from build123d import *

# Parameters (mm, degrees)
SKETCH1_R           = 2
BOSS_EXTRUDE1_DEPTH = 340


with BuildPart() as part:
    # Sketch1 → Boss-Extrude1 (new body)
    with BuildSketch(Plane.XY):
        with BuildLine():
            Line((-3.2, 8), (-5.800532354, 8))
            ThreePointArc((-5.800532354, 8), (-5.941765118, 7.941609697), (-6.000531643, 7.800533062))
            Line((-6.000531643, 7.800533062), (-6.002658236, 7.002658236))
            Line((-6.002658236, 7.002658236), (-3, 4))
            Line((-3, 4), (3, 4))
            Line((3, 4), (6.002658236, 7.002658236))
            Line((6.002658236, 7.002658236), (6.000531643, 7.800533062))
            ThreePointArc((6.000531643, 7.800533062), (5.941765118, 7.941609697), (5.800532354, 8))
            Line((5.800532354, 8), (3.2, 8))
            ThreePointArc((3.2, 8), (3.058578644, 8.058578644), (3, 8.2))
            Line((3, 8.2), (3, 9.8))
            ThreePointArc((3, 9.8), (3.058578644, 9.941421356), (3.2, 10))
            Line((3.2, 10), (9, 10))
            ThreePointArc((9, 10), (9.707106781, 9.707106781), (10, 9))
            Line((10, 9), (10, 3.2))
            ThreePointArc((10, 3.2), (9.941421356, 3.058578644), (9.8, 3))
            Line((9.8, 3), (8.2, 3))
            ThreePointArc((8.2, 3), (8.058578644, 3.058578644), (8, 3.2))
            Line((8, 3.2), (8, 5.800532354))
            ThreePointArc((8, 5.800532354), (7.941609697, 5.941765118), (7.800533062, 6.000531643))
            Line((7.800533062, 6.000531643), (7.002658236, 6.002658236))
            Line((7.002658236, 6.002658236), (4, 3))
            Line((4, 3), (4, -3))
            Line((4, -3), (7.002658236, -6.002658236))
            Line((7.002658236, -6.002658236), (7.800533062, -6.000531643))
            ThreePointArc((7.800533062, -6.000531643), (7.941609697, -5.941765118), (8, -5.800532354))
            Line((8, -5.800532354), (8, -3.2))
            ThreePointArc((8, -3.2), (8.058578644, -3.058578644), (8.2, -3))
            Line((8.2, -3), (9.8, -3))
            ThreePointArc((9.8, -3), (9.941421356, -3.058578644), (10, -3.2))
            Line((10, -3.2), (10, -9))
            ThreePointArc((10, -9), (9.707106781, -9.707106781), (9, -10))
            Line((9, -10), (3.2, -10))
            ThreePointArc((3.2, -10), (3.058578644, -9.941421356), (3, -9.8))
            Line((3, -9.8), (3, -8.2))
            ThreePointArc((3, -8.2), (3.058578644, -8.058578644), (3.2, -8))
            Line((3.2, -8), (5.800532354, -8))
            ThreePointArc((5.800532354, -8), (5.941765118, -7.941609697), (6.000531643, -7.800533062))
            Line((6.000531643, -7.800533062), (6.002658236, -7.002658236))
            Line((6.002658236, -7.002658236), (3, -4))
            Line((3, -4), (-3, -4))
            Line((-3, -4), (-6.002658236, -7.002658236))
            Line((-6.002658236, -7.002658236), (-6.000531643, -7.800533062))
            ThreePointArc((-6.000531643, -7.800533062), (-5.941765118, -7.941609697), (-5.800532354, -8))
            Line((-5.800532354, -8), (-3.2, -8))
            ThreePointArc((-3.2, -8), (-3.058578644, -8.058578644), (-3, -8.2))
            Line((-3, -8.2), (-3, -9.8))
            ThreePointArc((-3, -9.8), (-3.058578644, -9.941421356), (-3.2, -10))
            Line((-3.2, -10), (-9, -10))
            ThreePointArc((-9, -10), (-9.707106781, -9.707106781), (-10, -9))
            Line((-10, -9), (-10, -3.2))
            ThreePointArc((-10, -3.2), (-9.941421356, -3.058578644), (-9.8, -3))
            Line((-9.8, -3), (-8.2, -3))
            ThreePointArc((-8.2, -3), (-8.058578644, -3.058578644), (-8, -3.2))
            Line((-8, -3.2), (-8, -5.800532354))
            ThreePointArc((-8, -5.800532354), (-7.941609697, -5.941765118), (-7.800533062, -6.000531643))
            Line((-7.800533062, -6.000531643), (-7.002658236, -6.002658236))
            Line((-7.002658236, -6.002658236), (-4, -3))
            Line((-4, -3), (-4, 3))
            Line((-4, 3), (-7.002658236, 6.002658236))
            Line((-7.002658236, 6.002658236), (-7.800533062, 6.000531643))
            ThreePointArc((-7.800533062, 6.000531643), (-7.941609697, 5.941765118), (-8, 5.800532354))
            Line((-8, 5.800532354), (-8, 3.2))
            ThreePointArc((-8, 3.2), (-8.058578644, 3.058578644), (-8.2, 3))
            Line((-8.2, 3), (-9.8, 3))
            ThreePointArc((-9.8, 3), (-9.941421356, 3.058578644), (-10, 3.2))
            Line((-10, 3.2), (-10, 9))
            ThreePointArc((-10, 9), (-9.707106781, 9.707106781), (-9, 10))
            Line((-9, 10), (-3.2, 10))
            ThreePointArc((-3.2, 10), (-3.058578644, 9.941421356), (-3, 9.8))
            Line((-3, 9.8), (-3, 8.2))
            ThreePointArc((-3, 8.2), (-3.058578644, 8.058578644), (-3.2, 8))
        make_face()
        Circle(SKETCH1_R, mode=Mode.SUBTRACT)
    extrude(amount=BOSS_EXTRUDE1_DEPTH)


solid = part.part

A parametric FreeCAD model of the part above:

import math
import FreeCAD as App
import Part
import Sketcher
Q = App.Units.Quantity

doc = App.newDocument("Part")
body = doc.addObject("PartDesign::Body", "Body")

sketch1 = body.newObject("Sketcher::SketchObject", "Sketch")
sketch1.AttachmentSupport = (doc.getObject("XY_Plane"), [""])
sketch1.MapMode = "FlatFace"
sketch1.addGeometry([
    Part.LineSegment(App.Vector(-5.8, 8, 0), App.Vector(-3.2, 8, 0)),
    Part.ArcOfCircle(Part.Circle(App.Vector(-3.2, 8.2, 0), App.Vector(0, 0, 1), 0.2), math.radians(-90), math.radians(0)),
    Part.LineSegment(App.Vector(-3, 8.2, 0), App.Vector(-3, 9.8, 0)),
    Part.ArcOfCircle(Part.Circle(App.Vector(-3.2, 9.8, 0), App.Vector(0, 0, 1), 0.2), math.radians(0), math.radians(90)),
    Part.LineSegment(App.Vector(-3.2, 10, 0), App.Vector(-9, 10, 0)),
    Part.ArcOfCircle(Part.Circle(App.Vector(-9, 9, 0), App.Vector(0, 0, 1), 1), math.radians(90), math.radians(180)),
    Part.LineSegment(App.Vector(-10, 9, 0), App.Vector(-10, 3.2, 0)),
    Part.ArcOfCircle(Part.Circle(App.Vector(-9.8, 3.2, 0), App.Vector(0, 0, 1), 0.2), math.radians(-180), math.radians(-90)),
    Part.LineSegment(App.Vector(-9.8, 3, 0), App.Vector(-8.2, 3, 0)),
    Part.ArcOfCircle(Part.Circle(App.Vector(-8.2, 3.2, 0), App.Vector(0, 0, 1), 0.2), math.radians(-90), math.radians(0)),
    Part.LineSegment(App.Vector(-8, 3.2, 0), App.Vector(-8, 5.8, 0)),
    Part.ArcOfCircle(Part.Circle(App.Vector(-7.8, 5.8, 0), App.Vector(0, 0, 1), 0.2), math.radians(90), math.radians(180)),
    Part.LineSegment(App.Vector(-7.8, 6, 0), App.Vector(-7, 6, 0)),
    Part.LineSegment(App.Vector(-7, 6, 0), App.Vector(-4, 3, 0)),
    Part.LineSegment(App.Vector(-4, 3, 0), App.Vector(-4, -3, 0)),
    Part.LineSegment(App.Vector(-4, -3, 0), App.Vector(-7, -6, 0)),
    Part.LineSegment(App.Vector(-7, -6, 0), App.Vector(-7.8, -6, 0)),
    Part.ArcOfCircle(Part.Circle(App.Vector(-7.8, -5.8, 0), App.Vector(0, 0, 1), 0.2), math.radians(180), math.radians(270)),
    Part.LineSegment(App.Vector(-8, -5.8, 0), App.Vector(-8, -3.2, 0)),
    Part.ArcOfCircle(Part.Circle(App.Vector(-8.2, -3.2, 0), App.Vector(0, 0, 1), 0.2), math.radians(0), math.radians(90)),
    Part.LineSegment(App.Vector(-8.2, -3, 0), App.Vector(-9.8, -3, 0)),
    Part.ArcOfCircle(Part.Circle(App.Vector(-9.8, -3.2, 0), App.Vector(0, 0, 1), 0.2), math.radians(90), math.radians(180)),
    Part.LineSegment(App.Vector(-10, -3.2, 0), App.Vector(-10, -9, 0)),
    Part.ArcOfCircle(Part.Circle(App.Vector(-9, -9, 0), App.Vector(0, 0, 1), 1), math.radians(-180), math.radians(-90)),
    Part.LineSegment(App.Vector(-9, -10, 0), App.Vector(-3.2, -10, 0)),
    Part.ArcOfCircle(Part.Circle(App.Vector(-3.2, -9.8, 0), App.Vector(0, 0, 1), 0.2), math.radians(-90), math.radians(0)),
    Part.LineSegment(App.Vector(-3, -9.8, 0), App.Vector(-3, -8.2, 0)),
    Part.ArcOfCircle(Part.Circle(App.Vector(-3.2, -8.2, 0), App.Vector(0, 0, 1), 0.2), math.radians(0), math.radians(90)),
    Part.LineSegment(App.Vector(-3.2, -8, 0), App.Vector(-5.8, -8, 0)),
    Part.ArcOfCircle(Part.Circle(App.Vector(-5.8, -7.8, 0), App.Vector(0, 0, 1), 0.2), math.radians(-180), math.radians(-90)),
    Part.LineSegment(App.Vector(-6, -7.8, 0), App.Vector(-6, -7, 0)),
    Part.LineSegment(App.Vector(-6, -7, 0), App.Vector(-3, -4, 0)),
    Part.LineSegment(App.Vector(-3, -4, 0), App.Vector(3, -4, 0)),
    Part.LineSegment(App.Vector(3, -4, 0), App.Vector(6, -7, 0)),
    Part.LineSegment(App.Vector(6, -7, 0), App.Vector(6, -7.8, 0)),
    Part.ArcOfCircle(Part.Circle(App.Vector(5.8, -7.8, 0), App.Vector(0, 0, 1), 0.2), math.radians(-90), math.radians(0)),
    Part.LineSegment(App.Vector(5.8, -8, 0), App.Vector(3.2, -8, 0)),
    Part.ArcOfCircle(Part.Circle(App.Vector(3.2, -8.2, 0), App.Vector(0, 0, 1), 0.2), math.radians(90), math.radians(180)),
    Part.LineSegment(App.Vector(3, -8.2, 0), App.Vector(3, -9.8, 0)),
    Part.ArcOfCircle(Part.Circle(App.Vector(3.2, -9.8, 0), App.Vector(0, 0, 1), 0.2), math.radians(-180), math.radians(-90)),
    Part.LineSegment(App.Vector(3.2, -10, 0), App.Vector(9, -10, 0)),
    Part.ArcOfCircle(Part.Circle(App.Vector(9, -9, 0), App.Vector(0, 0, 1), 1), math.radians(-90), math.radians(0)),
    Part.LineSegment(App.Vector(10, -9, 0), App.Vector(10, -3.2, 0)),
    Part.ArcOfCircle(Part.Circle(App.Vector(9.8, -3.2, 0), App.Vector(0, 0, 1), 0.2), math.radians(0), math.radians(90)),
    Part.LineSegment(App.Vector(9.8, -3, 0), App.Vector(8.2, -3, 0)),
    Part.ArcOfCircle(Part.Circle(App.Vector(8.2, -3.2, 0), App.Vector(0, 0, 1), 0.2), math.radians(90), math.radians(180)),
    Part.LineSegment(App.Vector(8, -3.2, 0), App.Vector(8, -5.8, 0)),
    Part.ArcOfCircle(Part.Circle(App.Vector(7.8, -5.8, 0), App.Vector(0, 0, 1), 0.2), math.radians(-90), math.radians(0)),
    Part.LineSegment(App.Vector(7.8, -6, 0), App.Vector(7, -6, 0)),
    Part.LineSegment(App.Vector(7, -6, 0), App.Vector(4, -3, 0)),
    Part.LineSegment(App.Vector(4, -3, 0), App.Vector(4, 3, 0)),
    Part.LineSegment(App.Vector(4, 3, 0), App.Vector(7, 6, 0)),
    Part.LineSegment(App.Vector(7, 6, 0), App.Vector(7.8, 6, 0)),
    Part.ArcOfCircle(Part.Circle(App.Vector(7.8, 5.8, 0), App.Vector(0, 0, 1), 0.2), math.radians(0), math.radians(90)),
    Part.LineSegment(App.Vector(8, 5.8, 0), App.Vector(8, 3.2, 0)),
    Part.ArcOfCircle(Part.Circle(App.Vector(8.2, 3.2, 0), App.Vector(0, 0, 1), 0.2), math.radians(-180), math.radians(-90)),
    Part.LineSegment(App.Vector(8.2, 3, 0), App.Vector(9.8, 3, 0)),
    Part.ArcOfCircle(Part.Circle(App.Vector(9.8, 3.2, 0), App.Vector(0, 0, 1), 0.2), math.radians(-90), math.radians(0)),
    Part.LineSegment(App.Vector(10, 3.2, 0), App.Vector(10, 9, 0)),
    Part.ArcOfCircle(Part.Circle(App.Vector(9, 9, 0), App.Vector(0, 0, 1), 1), math.radians(0), math.radians(90)),
    Part.LineSegment(App.Vector(9, 10, 0), App.Vector(3.2, 10, 0)),
    Part.ArcOfCircle(Part.Circle(App.Vector(3.2, 9.8, 0), App.Vector(0, 0, 1), 0.2), math.radians(90), math.radians(180)),
    Part.LineSegment(App.Vector(3, 9.8, 0), App.Vector(3, 8.2, 0)),
    Part.ArcOfCircle(Part.Circle(App.Vector(3.2, 8.2, 0), App.Vector(0, 0, 1), 0.2), math.radians(-180), math.radians(-90)),
    Part.LineSegment(App.Vector(3.2, 8, 0), App.Vector(5.8, 8, 0)),
    Part.ArcOfCircle(Part.Circle(App.Vector(5.8, 7.8, 0), App.Vector(0, 0, 1), 0.2), math.radians(0), math.radians(90)),
    Part.LineSegment(App.Vector(6, 7.8, 0), App.Vector(6, 7, 0)),
    Part.LineSegment(App.Vector(6, 7, 0), App.Vector(3, 4, 0)),
    Part.LineSegment(App.Vector(3, 4, 0), App.Vector(-3, 4, 0)),
    Part.LineSegment(App.Vector(-3, 4, 0), App.Vector(-6, 7, 0)),
    Part.LineSegment(App.Vector(-6, 7, 0), App.Vector(-6, 7.8, 0)),
    Part.ArcOfCircle(Part.Circle(App.Vector(-5.8, 7.8, 0), App.Vector(0, 0, 1), 0.2), math.radians(90), math.radians(180)),
    Part.Circle(App.Vector(0, 0, 0), App.Vector(0, 0, 1), 2),
], False)
sketch1.addConstraint([
    Sketcher.Constraint("Tangent", 0, 2, 1, 1),
    Sketcher.Constraint("Tangent", 1, 2, 2, 1),
    Sketcher.Constraint("Tangent", 2, 2, 3, 1),
    Sketcher.Constraint("Tangent", 3, 2, 4, 1),
    Sketcher.Constraint("Tangent", 4, 2, 5, 1),
    Sketcher.Constraint("Tangent", 5, 2, 6, 1),
    Sketcher.Constraint("Tangent", 6, 2, 7, 1),
    Sketcher.Constraint("Tangent", 7, 2, 8, 1),
    Sketcher.Constraint("Tangent", 8, 2, 9, 1),
    Sketcher.Constraint("Tangent", 9, 2, 10, 1),
    Sketcher.Constraint("Tangent", 10, 2, 11, 2),
    Sketcher.Constraint("Tangent", 11, 1, 12, 1),
    Sketcher.Constraint("Coincident", 12, 2, 13, 1),
    Sketcher.Constraint("Coincident", 13, 2, 14, 1),
    Sketcher.Constraint("Coincident", 14, 2, 15, 1),
    Sketcher.Constraint("Coincident", 15, 2, 16, 1),
    Sketcher.Constraint("Tangent", 16, 2, 17, 2),
    Sketcher.Constraint("Tangent", 17, 1, 18, 1),
    Sketcher.Constraint("Tangent", 18, 2, 19, 1),
    Sketcher.Constraint("Tangent", 19, 2, 20, 1),
    Sketcher.Constraint("Tangent", 20, 2, 21, 1),
    Sketcher.Constraint("Tangent", 21, 2, 22, 1),
    Sketcher.Constraint("Tangent", 22, 2, 23, 1),
    Sketcher.Constraint("Tangent", 23, 2, 24, 1),
    Sketcher.Constraint("Tangent", 24, 2, 25, 1),
    Sketcher.Constraint("Tangent", 25, 2, 26, 1),
    Sketcher.Constraint("Tangent", 26, 2, 27, 1),
    Sketcher.Constraint("Tangent", 27, 2, 28, 1),
    Sketcher.Constraint("Tangent", 28, 2, 29, 2),
    Sketcher.Constraint("Tangent", 29, 1, 30, 1),
    Sketcher.Constraint("Coincident", 30, 2, 31, 1),
    Sketcher.Constraint("Coincident", 31, 2, 32, 1),
    Sketcher.Constraint("Coincident", 32, 2, 33, 1),
    Sketcher.Constraint("Coincident", 33, 2, 34, 1),
    Sketcher.Constraint("Tangent", 34, 2, 35, 2),
    Sketcher.Constraint("Tangent", 35, 1, 36, 1),
    Sketcher.Constraint("Tangent", 36, 2, 37, 1),
    Sketcher.Constraint("Tangent", 37, 2, 38, 1),
    Sketcher.Constraint("Tangent", 38, 2, 39, 1),
    Sketcher.Constraint("Tangent", 39, 2, 40, 1),
    Sketcher.Constraint("Tangent", 40, 2, 41, 1),
    Sketcher.Constraint("Tangent", 41, 2, 42, 1),
    Sketcher.Constraint("Tangent", 42, 2, 43, 1),
    Sketcher.Constraint("Tangent", 43, 2, 44, 1),
    Sketcher.Constraint("Tangent", 44, 2, 45, 1),
    Sketcher.Constraint("Tangent", 45, 2, 46, 1),
    Sketcher.Constraint("Tangent", 46, 2, 47, 2),
    Sketcher.Constraint("Tangent", 47, 1, 48, 1),
    Sketcher.Constraint("Coincident", 48, 2, 49, 1),
    Sketcher.Constraint("Coincident", 49, 2, 50, 1),
    Sketcher.Constraint("Coincident", 50, 2, 51, 1),
    Sketcher.Constraint("Coincident", 51, 2, 52, 1),
    Sketcher.Constraint("Tangent", 52, 2, 53, 2),
    Sketcher.Constraint("Tangent", 53, 1, 54, 1),
    Sketcher.Constraint("Tangent", 54, 2, 55, 1),
    Sketcher.Constraint("Tangent", 55, 2, 56, 1),
    Sketcher.Constraint("Tangent", 56, 2, 57, 1),
    Sketcher.Constraint("Tangent", 57, 2, 58, 1),
    Sketcher.Constraint("Tangent", 58, 2, 59, 1),
    Sketcher.Constraint("Tangent", 59, 2, 60, 1),
    Sketcher.Constraint("Tangent", 60, 2, 61, 1),
    Sketcher.Constraint("Tangent", 61, 2, 62, 1),
    Sketcher.Constraint("Tangent", 62, 2, 63, 1),
    Sketcher.Constraint("Tangent", 63, 2, 64, 1),
    Sketcher.Constraint("Tangent", 64, 2, 65, 2),
    Sketcher.Constraint("Tangent", 65, 1, 66, 1),
    Sketcher.Constraint("Coincident", 66, 2, 67, 1),
    Sketcher.Constraint("Coincident", 67, 2, 68, 1),
    Sketcher.Constraint("Coincident", 68, 2, 69, 1),
    Sketcher.Constraint("Coincident", 69, 2, 70, 1),
    Sketcher.Constraint("Tangent", 70, 2, 71, 2),
    Sketcher.Constraint("Tangent", 71, 1, 0, 1),
    Sketcher.Constraint("Horizontal", 0),
    Sketcher.Constraint("Vertical", 2),
    Sketcher.Constraint("Horizontal", 4),
    Sketcher.Constraint("Vertical", 6),
    Sketcher.Constraint("Horizontal", 8),
    Sketcher.Constraint("Vertical", 10),
    Sketcher.Constraint("Vertical", 14),
    Sketcher.Constraint("Vertical", 18),
    Sketcher.Constraint("Horizontal", 20),
    Sketcher.Constraint("Vertical", 22),
    Sketcher.Constraint("Horizontal", 24),
    Sketcher.Constraint("Vertical", 26),
    Sketcher.Constraint("Horizontal", 28),
    Sketcher.Constraint("Horizontal", 32),
    Sketcher.Constraint("Horizontal", 36),
    Sketcher.Constraint("Vertical", 38),
    Sketcher.Constraint("Horizontal", 40),
    Sketcher.Constraint("Vertical", 42),
    Sketcher.Constraint("Horizontal", 44),
    Sketcher.Constraint("Vertical", 46),
    Sketcher.Constraint("Vertical", 50),
    Sketcher.Constraint("Vertical", 54),
    Sketcher.Constraint("Horizontal", 56),
    Sketcher.Constraint("Vertical", 58),
    Sketcher.Constraint("Horizontal", 60),
    Sketcher.Constraint("Vertical", 62),
    Sketcher.Constraint("Horizontal", 64),
    Sketcher.Constraint("Horizontal", 68),
    Sketcher.Constraint("Coincident", 72, 3, -1, 1),
    Sketcher.Constraint("Equal", 1, 3),
    Sketcher.Constraint("Equal", 3, 7),
    Sketcher.Constraint("Equal", 7, 9),
    Sketcher.Constraint("Equal", 9, 11),
    Sketcher.Constraint("Equal", 11, 17),
    Sketcher.Constraint("Equal", 17, 19),
    Sketcher.Constraint("Equal", 19, 21),
    Sketcher.Constraint("Equal", 5, 23),
    Sketcher.Constraint("Equal", 21, 25),
    Sketcher.Constraint("Equal", 25, 27),
    Sketcher.Constraint("Equal", 27, 29),
    Sketcher.Constraint("Equal", 29, 35),
    Sketcher.Constraint("Equal", 35, 37),
    Sketcher.Constraint("Equal", 37, 39),
    Sketcher.Constraint("Equal", 23, 41),
    Sketcher.Constraint("Equal", 39, 43),
    Sketcher.Constraint("Equal", 43, 45),
    Sketcher.Constraint("Equal", 45, 47),
    Sketcher.Constraint("Equal", 47, 53),
    Sketcher.Constraint("Equal", 53, 55),
    Sketcher.Constraint("Equal", 55, 57),
    Sketcher.Constraint("Equal", 41, 59),
    Sketcher.Constraint("Equal", 57, 61),
    Sketcher.Constraint("Equal", 61, 63),
    Sketcher.Constraint("Equal", 63, 65),
    Sketcher.Constraint("Equal", 65, 71),
    Sketcher.Constraint("Symmetric", 1, 3, 37, 3, -1, 1),
    Sketcher.Constraint("Symmetric", 5, 3, 41, 3, -1, 1),
    Sketcher.Constraint("Symmetric", 9, 3, 45, 3, -1, 1),
    Sketcher.Constraint("Symmetric", 17, 3, 53, 3, -1, 1),
    Sketcher.Constraint("Symmetric", 21, 3, 57, 3, -1, 1),
    Sketcher.Constraint("Symmetric", 25, 3, 61, 3, -1, 1),
    Sketcher.Constraint("Symmetric", 29, 3, 65, 3, -1, 1),
    Sketcher.Constraint("Symmetric", 11, 1, 47, 1, -1, 1),
    Sketcher.Constraint("Symmetric", 13, 2, 49, 2, -1, 1),
    Sketcher.Constraint("Symmetric", 15, 2, 51, 2, -1, 1),
    Sketcher.Constraint("Symmetric", 30, 2, 66, 2, -1, 1),
    Sketcher.Constraint("Symmetric", 31, 2, 67, 2, -1, 1),
    Sketcher.Constraint("Symmetric", 33, 2, 69, 2, -1, 1),
    Sketcher.Constraint("Symmetric", 29, 3, 35, 3, -2),
    Sketcher.Constraint("Symmetric", 25, 3, 39, 3, -2),
    Sketcher.Constraint("Symmetric", 21, 3, 43, 3, -2),
    Sketcher.Constraint("Symmetric", 17, 3, 47, 3, -2),
    Sketcher.Constraint("Symmetric", 30, 2, 33, 2, -2),
    Sketcher.Constraint("Symmetric", 15, 2, 48, 2, -2),
    Sketcher.Constraint("Perpendicular", 13, 15),
    Sketcher.Constraint("Perpendicular", 12, 30),
    Sketcher.Constraint("Parallel", 15, 31),
    Sketcher.Constraint("Perpendicular", 31, 33),
    Sketcher.Constraint("Parallel", 33, 49),
    Sketcher.Constraint("Perpendicular", 49, 51),
    Sketcher.Constraint("Perpendicular", 67, 69),
    Sketcher.Constraint("Perpendicular", 52, 70),
    Sketcher.Constraint("Horizontal", 8, 2, 13, 2),
    Sketcher.Constraint("Horizontal", 14, 2, 19, 2),
    Sketcher.Constraint("Vertical", 26, 2, 31, 2),
    Sketcher.Constraint("Equal", 56, 2),
    Sketcher.Constraint("Equal", 60, 6),
    Sketcher.Constraint("Equal", 64, 10),
    Sketcher.Constraint("Equal", 68, 14),
    Sketcher.Constraint("Equal", 16, 30),
    Sketcher.Constraint("Diameter", 72, Q("4 mm")),
    Sketcher.Constraint("Radius", 5, Q("1 mm")),
    Sketcher.Constraint("Radius", 1, Q("0.2 mm")),
    Sketcher.Constraint("DistanceX", 32, 1, 32, 2, Q("6 mm")),
    Sketcher.Constraint("DistanceX", 4, 2, 4, 1, Q("5.8 mm")),
    Sketcher.Constraint("DistanceX", 8, 1, 8, 2, Q("1.6 mm")),
    Sketcher.Constraint("DistanceX", 13, 2, -1, 1, Q("4 mm")),
    Sketcher.Constraint("Distance", 13, Q("4.2464 mm")),
    Sketcher.Constraint("DistanceX", 0, 1, 0, 2, Q("2.600532 mm")),
])
pad1 = body.newObject("PartDesign::Pad", "Pad")
pad1.Profile = sketch1
pad1.Length = 340

doc.recompute()
